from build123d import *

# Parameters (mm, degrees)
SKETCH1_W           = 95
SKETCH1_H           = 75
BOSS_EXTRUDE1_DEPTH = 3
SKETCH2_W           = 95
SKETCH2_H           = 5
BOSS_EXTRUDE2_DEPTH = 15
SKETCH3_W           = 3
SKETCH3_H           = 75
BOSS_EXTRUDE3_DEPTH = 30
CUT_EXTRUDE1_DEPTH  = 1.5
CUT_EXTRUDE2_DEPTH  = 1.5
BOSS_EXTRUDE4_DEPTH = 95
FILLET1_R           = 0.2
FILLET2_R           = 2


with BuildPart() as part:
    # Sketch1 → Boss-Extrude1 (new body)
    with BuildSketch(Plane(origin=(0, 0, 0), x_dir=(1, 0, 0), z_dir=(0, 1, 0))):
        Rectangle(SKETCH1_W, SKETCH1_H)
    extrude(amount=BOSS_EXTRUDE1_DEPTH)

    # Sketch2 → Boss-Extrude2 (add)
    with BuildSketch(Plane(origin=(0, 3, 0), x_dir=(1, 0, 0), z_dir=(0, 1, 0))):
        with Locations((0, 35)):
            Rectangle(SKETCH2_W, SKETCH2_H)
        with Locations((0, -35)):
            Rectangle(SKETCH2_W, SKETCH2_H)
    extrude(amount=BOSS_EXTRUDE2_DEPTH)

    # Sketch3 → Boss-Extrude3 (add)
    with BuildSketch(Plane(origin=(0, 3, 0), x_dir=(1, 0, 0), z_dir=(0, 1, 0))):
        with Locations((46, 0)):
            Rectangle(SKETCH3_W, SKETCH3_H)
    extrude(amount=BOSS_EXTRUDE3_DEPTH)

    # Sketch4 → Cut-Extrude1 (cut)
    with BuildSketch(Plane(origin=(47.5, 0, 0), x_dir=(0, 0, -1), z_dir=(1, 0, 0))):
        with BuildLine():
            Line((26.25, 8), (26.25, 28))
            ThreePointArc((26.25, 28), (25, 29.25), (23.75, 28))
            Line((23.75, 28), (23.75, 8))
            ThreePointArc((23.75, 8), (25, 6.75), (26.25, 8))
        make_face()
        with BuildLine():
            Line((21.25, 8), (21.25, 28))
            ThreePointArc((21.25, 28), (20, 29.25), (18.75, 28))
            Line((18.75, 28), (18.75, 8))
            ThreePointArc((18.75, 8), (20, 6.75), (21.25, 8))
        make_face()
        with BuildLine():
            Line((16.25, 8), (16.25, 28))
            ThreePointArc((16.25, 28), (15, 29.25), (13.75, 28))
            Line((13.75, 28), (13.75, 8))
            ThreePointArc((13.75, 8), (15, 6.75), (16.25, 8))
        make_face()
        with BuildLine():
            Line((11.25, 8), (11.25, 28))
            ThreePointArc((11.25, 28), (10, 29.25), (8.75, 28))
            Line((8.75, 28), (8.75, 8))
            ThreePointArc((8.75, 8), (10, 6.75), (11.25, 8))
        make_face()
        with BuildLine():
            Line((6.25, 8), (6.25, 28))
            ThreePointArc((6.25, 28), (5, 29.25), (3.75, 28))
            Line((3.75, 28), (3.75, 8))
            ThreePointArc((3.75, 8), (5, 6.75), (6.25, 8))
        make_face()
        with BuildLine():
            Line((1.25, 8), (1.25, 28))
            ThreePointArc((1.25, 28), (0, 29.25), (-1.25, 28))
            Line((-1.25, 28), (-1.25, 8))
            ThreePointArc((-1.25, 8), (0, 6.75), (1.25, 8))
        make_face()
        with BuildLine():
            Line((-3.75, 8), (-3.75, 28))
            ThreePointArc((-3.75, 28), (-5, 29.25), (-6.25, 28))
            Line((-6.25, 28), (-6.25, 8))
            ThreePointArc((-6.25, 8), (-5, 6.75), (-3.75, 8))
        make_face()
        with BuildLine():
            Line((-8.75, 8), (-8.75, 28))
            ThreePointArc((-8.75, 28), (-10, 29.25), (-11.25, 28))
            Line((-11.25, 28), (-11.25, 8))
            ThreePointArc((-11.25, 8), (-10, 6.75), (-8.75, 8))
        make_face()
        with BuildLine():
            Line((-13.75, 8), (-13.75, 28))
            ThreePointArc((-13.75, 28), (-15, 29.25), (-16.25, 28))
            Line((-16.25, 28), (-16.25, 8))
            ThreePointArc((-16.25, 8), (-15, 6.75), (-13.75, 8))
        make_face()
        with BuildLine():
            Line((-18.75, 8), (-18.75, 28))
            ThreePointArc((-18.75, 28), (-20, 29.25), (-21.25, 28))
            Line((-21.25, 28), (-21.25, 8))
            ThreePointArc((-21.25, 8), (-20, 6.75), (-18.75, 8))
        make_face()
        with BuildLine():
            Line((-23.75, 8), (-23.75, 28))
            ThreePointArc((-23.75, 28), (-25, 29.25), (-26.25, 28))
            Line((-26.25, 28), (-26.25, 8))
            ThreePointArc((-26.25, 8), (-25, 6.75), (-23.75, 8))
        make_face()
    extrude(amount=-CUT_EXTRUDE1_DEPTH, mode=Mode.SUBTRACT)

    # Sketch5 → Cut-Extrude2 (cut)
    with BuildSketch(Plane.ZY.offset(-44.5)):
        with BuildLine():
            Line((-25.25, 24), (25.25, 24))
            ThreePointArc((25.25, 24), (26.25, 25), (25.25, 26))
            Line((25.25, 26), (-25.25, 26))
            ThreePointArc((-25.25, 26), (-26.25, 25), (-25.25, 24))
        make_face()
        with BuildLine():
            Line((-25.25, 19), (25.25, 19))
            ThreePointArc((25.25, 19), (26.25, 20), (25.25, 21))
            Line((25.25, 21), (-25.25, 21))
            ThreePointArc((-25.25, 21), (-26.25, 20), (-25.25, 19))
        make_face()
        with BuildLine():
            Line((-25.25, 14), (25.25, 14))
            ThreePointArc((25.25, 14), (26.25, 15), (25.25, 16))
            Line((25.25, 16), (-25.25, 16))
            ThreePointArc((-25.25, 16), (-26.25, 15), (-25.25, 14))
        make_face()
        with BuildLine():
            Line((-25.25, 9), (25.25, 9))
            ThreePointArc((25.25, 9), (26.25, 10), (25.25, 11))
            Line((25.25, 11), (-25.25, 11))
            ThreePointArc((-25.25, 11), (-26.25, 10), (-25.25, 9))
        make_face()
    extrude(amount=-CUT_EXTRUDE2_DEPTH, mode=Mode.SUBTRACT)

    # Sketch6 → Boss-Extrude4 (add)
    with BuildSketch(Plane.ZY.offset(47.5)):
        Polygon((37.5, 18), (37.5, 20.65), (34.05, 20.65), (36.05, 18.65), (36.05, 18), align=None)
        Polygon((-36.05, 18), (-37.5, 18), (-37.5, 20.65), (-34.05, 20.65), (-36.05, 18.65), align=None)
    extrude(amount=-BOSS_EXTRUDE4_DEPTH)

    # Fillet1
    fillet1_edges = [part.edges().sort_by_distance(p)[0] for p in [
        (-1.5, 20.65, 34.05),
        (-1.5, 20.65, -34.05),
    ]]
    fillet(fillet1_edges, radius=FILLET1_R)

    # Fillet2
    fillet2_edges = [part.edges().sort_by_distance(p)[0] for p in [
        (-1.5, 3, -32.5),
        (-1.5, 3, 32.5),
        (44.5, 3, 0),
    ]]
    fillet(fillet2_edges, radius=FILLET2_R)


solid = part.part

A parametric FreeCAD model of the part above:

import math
import FreeCAD as App
import Part
import Sketcher
from FreeCAD import Vector
Q = App.Units.Quantity


def edges_at(feature, points):
    """Names of the edges that pass closest to the given points."""
    edges = feature.Shape.Edges
    near = lambda p: min(range(len(edges)), key=lambda i: edges[i].distToShape(Part.Vertex(*p))[0])
    return sorted({f"Edge{near(p) + 1}" for p in points})

doc = App.newDocument("Part")
params = doc.addObject("Spreadsheet::Sheet", "Params")
for row, (alias, value) in enumerate([
    ("sketch1_width", "95 mm"),
    ("sketch1_height", "75 mm"),
    ("pad1_length", "3 mm"),
    ("sketch2_width", "95 mm"),
    ("sketch2_height", "5 mm"),
    ("pad2_length", "15 mm"),
    ("sketch3_width", "3 mm"),
    ("sketch3_height", "75 mm"),
    ("pad3_length", "30 mm"),
    ("sketch4_width", "20 mm"),
    ("sketch4_radius", "1.25 mm"),
    ("pocket1_length", "1.5 mm"),
    ("sketch5_radius", "1 mm"),
    ("sketch5_height", "50.5 mm"),
    ("pocket2_length", "1.5 mm"),
    ("sketch6_width", "2.65 mm"),
    ("sketch6_height", "3.45 mm"),
    ("pad4_length", "95 mm"),
    ("fillet_radius", "0.2 mm"),
    ("fillet2_radius", "2 mm"),
], start=1):
    params.set(f"A{row}", alias)
    params.set(f"B{row}", "=" + value)
    params.setAlias(f"B{row}", alias)

body = doc.addObject("PartDesign::Body", "Body")

# Sketch on XZ plane
sketch1 = body.newObject("Sketcher::SketchObject", "Sketch")
sketch1.AttachmentSupport = (doc.getObject("XZ_Plane"), [""])
sketch1.MapMode = "FlatFace"
sketch1.addGeometry([
    Part.LineSegment(Vector(-48, -38, 0), Vector(-48, 38, 0)),
    Part.LineSegment(Vector(-48, 38, 0), Vector(48, 38, 0)),
    Part.LineSegment(Vector(48, 38, 0), Vector(48, -38, 0)),
    Part.LineSegment(Vector(48, -38, 0), Vector(-48, -38, 0)),
], False)
sketch1.addConstraint([
    Sketcher.Constraint("Coincident", 0, 2, 1, 1),
    Sketcher.Constraint("Coincident", 1, 2, 2, 1),
    Sketcher.Constraint("Coincident", 2, 2, 3, 1),
    Sketcher.Constraint("Coincident", 3, 2, 0, 1),
    Sketcher.Constraint("Vertical", 0),
    Sketcher.Constraint("Horizontal", 1),
    Sketcher.Constraint("Vertical", 2),
    Sketcher.Constraint("Horizontal", 3),
    Sketcher.Constraint("Symmetric", 0, 2, 2, 2, -1, 1),
    Sketcher.Constraint("DistanceX", 1, 1, 1, 2, Q("95 mm")),
    Sketcher.Constraint("DistanceY", 0, 1, 0, 2, Q("75 mm")),
])
sketch1.setExpression("Constraints[9]", "Params.sketch1_width")
sketch1.setExpression("Constraints[10]", "Params.sketch1_height")
pad1 = body.newObject("PartDesign::Pad", "Pad")
pad1.Profile = sketch1
pad1.setExpression("Length", "Params.pad1_length")
pad1.Reversed = True

# Sketch on XZ plane
sketch2 = body.newObject("Sketcher::SketchObject", "Sketch001")
sketch2.AttachmentSupport = (doc.getObject("XZ_Plane"), [""])
sketch2.MapMode = "FlatFace"
sketch2.AttachmentOffset = App.Placement(Vector(0, 0, -3), App.Rotation())
sketch2.addGeometry([
    Part.LineSegment(Vector(-48, -38, 0), Vector(-48, -32, 0)),  # 0
    Part.LineSegment(Vector(-48, -32, 0), Vector(48, -32, 0)),  # 1
    Part.LineSegment(Vector(48, -32, 0), Vector(48, -38, 0)),  # 2
    Part.LineSegment(Vector(48, -38, 0), Vector(-48, -38, 0)),  # 3
    Part.LineSegment(Vector(-48, 32, 0), Vector(-48, 38, 0)),  # 4
    Part.LineSegment(Vector(-48, 38, 0), Vector(48, 38, 0)),  # 5
    Part.LineSegment(Vector(48, 38, 0), Vector(48, 32, 0)),  # 6
    Part.LineSegment(Vector(48, 32, 0), Vector(-48, 32, 0)),  # 7
], False)
sketch2.addConstraint([
    Sketcher.Constraint("Coincident", 0, 2, 1, 1),
    Sketcher.Constraint("Coincident", 1, 2, 2, 1),
    Sketcher.Constraint("Coincident", 2, 2, 3, 1),
    Sketcher.Constraint("Coincident", 3, 2, 0, 1),
    Sketcher.Constraint("Coincident", 4, 2, 5, 1),
    Sketcher.Constraint("Coincident", 5, 2, 6, 1),
    Sketcher.Constraint("Coincident", 6, 2, 7, 1),
    Sketcher.Constraint("Coincident", 7, 2, 4, 1),
    Sketcher.Constraint("Vertical", 0),
    Sketcher.Constraint("Horizontal", 1),
    Sketcher.Constraint("Vertical", 2),
    Sketcher.Constraint("Horizontal", 3),
    Sketcher.Constraint("Vertical", 4),
    Sketcher.Constraint("Horizontal", 5),
    Sketcher.Constraint("Vertical", 6),
    Sketcher.Constraint("Horizontal", 7),
    Sketcher.Constraint("Symmetric", 2, 2, 4, 2, -1, 1),
    Sketcher.Constraint("Symmetric", 0, 2, 6, 2, -1, 1),
    Sketcher.Constraint("Vertical", 3, 2, 4, 2),
    Sketcher.Constraint("DistanceX", 1, 1, 1, 2, Q("95 mm")),
    Sketcher.Constraint("DistanceY", 0, 1, 0, 2, Q("5 mm")),
    Sketcher.Constraint("DistanceY", 0, 2, 4, 2, Q("70 mm")),
])
sketch2.setExpression("Constraints[19]", "Params.sketch2_width")
sketch2.setExpression("Constraints[20]", "Params.sketch2_height")
pad2 = body.newObject("PartDesign::Pad", "Pad001")
pad2.Profile = sketch2
pad2.setExpression("Length", "Params.pad2_length")
pad2.Reversed = True

# Sketch on XZ plane
sketch3 = body.newObject("Sketcher::SketchObject", "Sketch002")
sketch3.AttachmentSupport = (doc.getObject("XZ_Plane"), [""])
sketch3.MapMode = "FlatFace"
sketch3.AttachmentOffset = App.Placement(Vector(0, 0, -3), App.Rotation())
sketch3.addGeometry([
    Part.LineSegment(Vector(44.5, -37.5, 0), Vector(44.5, 37.5, 0)),
    Part.LineSegment(Vector(44.5, 37.5, 0), Vector(47.5, 37.5, 0)),
    Part.LineSegment(Vector(47.5, 37.5, 0), Vector(47.5, -37.5, 0)),
    Part.LineSegment(Vector(47.5, -37.5, 0), Vector(44.5, -37.5, 0)),
], False)
sketch3.addConstraint([
    Sketcher.Constraint("Coincident", 0, 2, 1, 1),
    Sketcher.Constraint("Coincident", 1, 2, 2, 1),
    Sketcher.Constraint("Coincident", 2, 2, 3, 1),
    Sketcher.Constraint("Coincident", 3, 2, 0, 1),
    Sketcher.Constraint("Vertical", 0),
    Sketcher.Constraint("Horizontal", 1),
    Sketcher.Constraint("Vertical", 2),
    Sketcher.Constraint("Horizontal", 3),
    Sketcher.Constraint("DistanceX", 1, 1, 1, 2, Q("3 mm")),
    Sketcher.Constraint("DistanceY", 0, 1, 0, 2, Q("75 mm")),
    Sketcher.Constraint("DistanceX", -1, 1, 0, 2, Q("44.5 mm")),
    Sketcher.Constraint("DistanceY", -1, 1, 0, 2, Q("37.5 mm")),
])
sketch3.setExpression("Constraints[8]", "Params.sketch3_width")
sketch3.setExpression("Constraints[9]", "Params.sketch3_height")
pad3 = body.newObject("PartDesign::Pad", "Pad002")
pad3.Profile = sketch3
pad3.setExpression("Length", "Params.pad3_length")
pad3.Reversed = True

# Sketch on YZ plane
sketch4 = body.newObject("Sketcher::SketchObject", "Sketch003")
sketch4.AttachmentSupport = (doc.getObject("YZ_Plane"), [""])
sketch4.MapMode = "FlatFace"
sketch4.AttachmentOffset = App.Placement(Vector(0, 0, 47.5), App.Rotation())
sketch4.addGeometry([
    Part.LineSegment(Vector(8, -26.2, 0), Vector(28, -26.2, 0)),  # 0
    Part.ArcOfCircle(Part.Circle(Vector(28, -25, 0), Vector(0, 0, 1), 1.2), math.radians(-90), math.radians(90)),  # 1
    Part.LineSegment(Vector(28, -23.8, 0), Vector(8, -23.8, 0)),  # 2
    Part.ArcOfCircle(Part.Circle(Vector(8, -25, 0), Vector(0, 0, 1), 1.2), math.radians(90), math.radians(270)),  # 3
    Part.LineSegment(Vector(8, -21.2, 0), Vector(28, -21.2, 0)),  # 4
    Part.ArcOfCircle(Part.Circle(Vector(28, -20, 0), Vector(0, 0, 1), 1.2), math.radians(-90), math.radians(90)),  # 5
    Part.LineSegment(Vector(28, -18.8, 0), Vector(8, -18.8, 0)),  # 6
    Part.ArcOfCircle(Part.Circle(Vector(8, -20, 0), Vector(0, 0, 1), 1.2), math.radians(90), math.radians(270)),  # 7
    Part.LineSegment(Vector(8, -16.2, 0), Vector(28, -16.2, 0)),  # 8
    Part.ArcOfCircle(Part.Circle(Vector(28, -15, 0), Vector(0, 0, 1), 1.2), math.radians(-90), math.radians(90)),  # 9
    Part.LineSegment(Vector(28, -13.8, 0), Vector(8, -13.8, 0)),  # 10
    Part.ArcOfCircle(Part.Circle(Vector(8, -15, 0), Vector(0, 0, 1), 1.2), math.radians(90), math.radians(270)),  # 11
    Part.LineSegment(Vector(8, -11.2, 0), Vector(28, -11.2, 0)),  # 12
    Part.ArcOfCircle(Part.Circle(Vector(28, -10, 0), Vector(0, 0, 1), 1.2), math.radians(-90), math.radians(90)),  # 13
    Part.LineSegment(Vector(28, -8.8, 0), Vector(8, -8.8, 0)),  # 14
    Part.ArcOfCircle(Part.Circle(Vector(8, -10, 0), Vector(0, 0, 1), 1.2), math.radians(90), math.radians(270)),  # 15
    Part.LineSegment(Vector(8, -6.2, 0), Vector(28, -6.2, 0)),  # 16
    Part.ArcOfCircle(Part.Circle(Vector(28, -5, 0), Vector(0, 0, 1), 1.2), math.radians(-90), math.radians(90)),  # 17
    Part.LineSegment(Vector(28, -3.8, 0), Vector(8, -3.8, 0)),  # 18
    Part.ArcOfCircle(Part.Circle(Vector(8, -5, 0), Vector(0, 0, 1), 1.2), math.radians(90), math.radians(270)),  # 19
    Part.LineSegment(Vector(8, -1.2, 0), Vector(28, -1.2, 0)),  # 20
    Part.ArcOfCircle(Part.Circle(Vector(28, 0, 0), Vector(0, 0, 1), 1.2), math.radians(-90), math.radians(90)),  # 21
    Part.LineSegment(Vector(28, 1.2, 0), Vector(8, 1.2, 0)),  # 22
    Part.ArcOfCircle(Part.Circle(Vector(8, 0, 0), Vector(0, 0, 1), 1.2), math.radians(90), math.radians(270)),  # 23
    Part.LineSegment(Vector(8, 3.8, 0), Vector(28, 3.8, 0)),  # 24
    Part.ArcOfCircle(Part.Circle(Vector(28, 5, 0), Vector(0, 0, 1), 1.2), math.radians(-90), math.radians(90)),  # 25
    Part.LineSegment(Vector(28, 6.2, 0), Vector(8, 6.2, 0)),  # 26
    Part.ArcOfCircle(Part.Circle(Vector(8, 5, 0), Vector(0, 0, 1), 1.2), math.radians(90), math.radians(270)),  # 27
    Part.LineSegment(Vector(8, 8.8, 0), Vector(28, 8.8, 0)),  # 28
    Part.ArcOfCircle(Part.Circle(Vector(28, 10, 0), Vector(0, 0, 1), 1.2), math.radians(-90), math.radians(90)),  # 29
    Part.LineSegment(Vector(28, 11.2, 0), Vector(8, 11.2, 0)),  # 30
    Part.ArcOfCircle(Part.Circle(Vector(8, 10, 0), Vector(0, 0, 1), 1.2), math.radians(90), math.radians(270)),  # 31
    Part.LineSegment(Vector(8, 13.8, 0), Vector(28, 13.8, 0)),  # 32
    Part.ArcOfCircle(Part.Circle(Vector(28, 15, 0), Vector(0, 0, 1), 1.2), math.radians(-90), math.radians(90)),  # 33
    Part.LineSegment(Vector(28, 16.2, 0), Vector(8, 16.2, 0)),  # 34
    Part.ArcOfCircle(Part.Circle(Vector(8, 15, 0), Vector(0, 0, 1), 1.2), math.radians(90), math.radians(270)),  # 35
    Part.LineSegment(Vector(8, 18.8, 0), Vector(28, 18.8, 0)),  # 36
    Part.ArcOfCircle(Part.Circle(Vector(28, 20, 0), Vector(0, 0, 1), 1.2), math.radians(-90), math.radians(90)),  # 37
    Part.LineSegment(Vector(28, 21.2, 0), Vector(8, 21.2, 0)),  # 38
    Part.ArcOfCircle(Part.Circle(Vector(8, 20, 0), Vector(0, 0, 1), 1.2), math.radians(90), math.radians(270)),  # 39
    Part.LineSegment(Vector(8, 23.8, 0), Vector(28, 23.8, 0)),  # 40
    Part.ArcOfCircle(Part.Circle(Vector(28, 25, 0), Vector(0, 0, 1), 1.2), math.radians(-90), math.radians(90)),  # 41
    Part.LineSegment(Vector(28, 26.2, 0), Vector(8, 26.2, 0)),  # 42
    Part.ArcOfCircle(Part.Circle(Vector(8, 25, 0), Vector(0, 0, 1), 1.2), math.radians(90), math.radians(270)),  # 43
], False)
sketch4.addConstraint([
    Sketcher.Constraint("Tangent", 0, 2, 1, 1),
    Sketcher.Constraint("Tangent", 1, 2, 2, 1),
    Sketcher.Constraint("Tangent", 2, 2, 3, 1),
    Sketcher.Constraint("Tangent", 3, 2, 0, 1),
    Sketcher.Constraint("Tangent", 4, 2, 5, 1),
    Sketcher.Constraint("Tangent", 5, 2, 6, 1),
    Sketcher.Constraint("Tangent", 6, 2, 7, 1),
    Sketcher.Constraint("Tangent", 7, 2, 4, 1),
    Sketcher.Constraint("Tangent", 8, 2, 9, 1),
    Sketcher.Constraint("Tangent", 9, 2, 10, 1),
    Sketcher.Constraint("Tangent", 10, 2, 11, 1),
    Sketcher.Constraint("Tangent", 11, 2, 8, 1),
    Sketcher.Constraint("Tangent", 12, 2, 13, 1),
    Sketcher.Constraint("Tangent", 13, 2, 14, 1),
    Sketcher.Constraint("Tangent", 14, 2, 15, 1),
    Sketcher.Constraint("Tangent", 15, 2, 12, 1),
    Sketcher.Constraint("Tangent", 16, 2, 17, 1),
    Sketcher.Constraint("Tangent", 17, 2, 18, 1),
    Sketcher.Constraint("Tangent", 18, 2, 19, 1),
    Sketcher.Constraint("Tangent", 19, 2, 16, 1),
    Sketcher.Constraint("Tangent", 20, 2, 21, 1),
    Sketcher.Constraint("Tangent", 21, 2, 22, 1),
    Sketcher.Constraint("Tangent", 22, 2, 23, 1),
    Sketcher.Constraint("Tangent", 23, 2, 20, 1),
    Sketcher.Constraint("Tangent", 24, 2, 25, 1),
    Sketcher.Constraint("Tangent", 25, 2, 26, 1),
    Sketcher.Constraint("Tangent", 26, 2, 27, 1),
    Sketcher.Constraint("Tangent", 27, 2, 24, 1),
    Sketcher.Constraint("Tangent", 28, 2, 29, 1),
    Sketcher.Constraint("Tangent", 29, 2, 30, 1),
    Sketcher.Constraint("Tangent", 30, 2, 31, 1),
    Sketcher.Constraint("Tangent", 31, 2, 28, 1),
    Sketcher.Constraint("Tangent", 32, 2, 33, 1),
    Sketcher.Constraint("Tangent", 33, 2, 34, 1),
    Sketcher.Constraint("Tangent", 34, 2, 35, 1),
    Sketcher.Constraint("Tangent", 35, 2, 32, 1),
    Sketcher.Constraint("Tangent", 36, 2, 37, 1),
    Sketcher.Constraint("Tangent", 37, 2, 38, 1),
    Sketcher.Constraint("Tangent", 38, 2, 39, 1),
    Sketcher.Constraint("Tangent", 39, 2, 36, 1),
    Sketcher.Constraint("Tangent", 40, 2, 41, 1),
    Sketcher.Constraint("Tangent", 41, 2, 42, 1),
    Sketcher.Constraint("Tangent", 42, 2, 43, 1),
    Sketcher.Constraint("Tangent", 43, 2, 40, 1),
    Sketcher.Constraint("Horizontal", 0),
    Sketcher.Constraint("Horizontal", 2),
    Sketcher.Constraint("Horizontal", 4),
    Sketcher.Constraint("Horizontal", 6),
    Sketcher.Constraint("Horizontal", 8),
    Sketcher.Constraint("Horizontal", 10),
    Sketcher.Constraint("Horizontal", 12),
    Sketcher.Constraint("Horizontal", 14),
    Sketcher.Constraint("Horizontal", 16),
    Sketcher.Constraint("Horizontal", 18),
    Sketcher.Constraint("Horizontal", 20),
    Sketcher.Constraint("Horizontal", 22),
    Sketcher.Constraint("Horizontal", 24),
    Sketcher.Constraint("Horizontal", 26),
    Sketcher.Constraint("Horizontal", 28),
    Sketcher.Constraint("Horizontal", 30),
    Sketcher.Constraint("Horizontal", 32),
    Sketcher.Constraint("Horizontal", 34),
    Sketcher.Constraint("Horizontal", 36),
    Sketcher.Constraint("Horizontal", 38),
    Sketcher.Constraint("Horizontal", 40),
    Sketcher.Constraint("Horizontal", 42),
    Sketcher.Constraint("Equal", 3, 5),
    Sketcher.Constraint("Equal", 7, 9),
    Sketcher.Constraint("Equal", 11, 13),
    Sketcher.Constraint("Equal", 15, 17),
    Sketcher.Constraint("Equal", 19, 21),
    Sketcher.Constraint("Equal", 23, 25),
    Sketcher.Constraint("Equal", 27, 29),
    Sketcher.Constraint("Equal", 31, 33),
    Sketcher.Constraint("Equal", 35, 37),
    Sketcher.Constraint("Equal", 39, 41),
    Sketcher.Constraint("Symmetric", 17, 3, 25, 3, -1),
    Sketcher.Constraint("Symmetric", 13, 3, 29, 3, -1),
    Sketcher.Constraint("Symmetric", 9, 3, 33, 3, -1),
    Sketcher.Constraint("Symmetric", 5, 3, 37, 3, -1),
    Sketcher.Constraint("Symmetric", 1, 3, 41, 3, -1),
    Sketcher.Constraint("PointOnObject", 21, 3, -1),
    Sketcher.Constraint("Vertical", 1, 3, 5, 3),
    Sketcher.Constraint("Vertical", 3, 3, 7, 3),
    Sketcher.Constraint("Vertical", 5, 3, 9, 3),
    Sketcher.Constraint("Vertical", 7, 3, 11, 3),
    Sketcher.Constraint("Vertical", 9, 3, 13, 3),
    Sketcher.Constraint("Vertical", 11, 3, 15, 3),
    Sketcher.Constraint("Vertical", 13, 3, 17, 3),
    Sketcher.Constraint("Vertical", 15, 3, 19, 3),
    Sketcher.Constraint("Vertical", 17, 3, 21, 3),
    Sketcher.Constraint("Vertical", 19, 3, 23, 3),
    Sketcher.Constraint("Vertical", 23, 3, 27, 3),
    Sketcher.Constraint("Vertical", 27, 3, 31, 3),
    Sketcher.Constraint("Vertical", 31, 3, 35, 3),
    Sketcher.Constraint("Vertical", 35, 3, 39, 3),
    Sketcher.Constraint("Vertical", 39, 3, 43, 3),
    Sketcher.Constraint("DistanceX", 0, 1, 0, 2, Q("20 mm")),
    Sketcher.Constraint("Radius", 1, Q("1.25 mm")),
    Sketcher.Constraint("DistanceX", -1, 1, 1, 3, Q("28 mm")),
    Sketcher.Constraint("DistanceY", 1, 3, -1, 1, Q("25 mm")),
    Sketcher.Constraint("DistanceY", 5, 3, -1, 1, Q("20 mm")),
    Sketcher.Constraint("DistanceY", 9, 3, -1, 1, Q("15 mm")),
    Sketcher.Constraint("DistanceY", 13, 3, -1, 1, Q("10 mm")),
    Sketcher.Constraint("DistanceY", 17, 3, -1, 1, Q("5 mm")),
])
sketch4.setExpression("Constraints[97]", "Params.sketch4_width")
sketch4.setExpression("Constraints[98]", "Params.sketch4_radius")
pocket1 = body.newObject("PartDesign::Pocket", "Pocket")
pocket1.Profile = sketch4
pocket1.setExpression("Length", "Params.pocket1_length")

# Sketch on YZ plane
sketch5 = body.newObject("Sketcher::SketchObject", "Sketch004")
sketch5.AttachmentSupport = (doc.getObject("YZ_Plane"), [""])
sketch5.MapMode = "FlatFace"
sketch5.AttachmentOffset = App.Placement(Vector(0, 0, 44.5), App.Rotation())
sketch5.addGeometry([
    Part.LineSegment(Vector(24, -25.2, 0), Vector(24, 25.2, 0)),  # 0
    Part.ArcOfCircle(Part.Circle(Vector(25, 25.2, 0), Vector(0, 0, 1), 1), math.radians(0), math.radians(180)),  # 1
    Part.LineSegment(Vector(26, 25.2, 0), Vector(26, -25.2, 0)),  # 2
    Part.ArcOfCircle(Part.Circle(Vector(25, -25.2, 0), Vector(0, 0, 1), 1), math.radians(180), math.radians(360)),  # 3
    Part.LineSegment(Vector(19, -25.2, 0), Vector(19, 25.2, 0)),  # 4
    Part.ArcOfCircle(Part.Circle(Vector(20, 25.2, 0), Vector(0, 0, 1), 1), math.radians(0), math.radians(180)),  # 5
    Part.LineSegment(Vector(21, 25.2, 0), Vector(21, -25.2, 0)),  # 6
    Part.ArcOfCircle(Part.Circle(Vector(20, -25.2, 0), Vector(0, 0, 1), 1), math.radians(180), math.radians(360)),  # 7
    Part.LineSegment(Vector(14, -25.2, 0), Vector(14, 25.2, 0)),  # 8
    Part.ArcOfCircle(Part.Circle(Vector(15, 25.2, 0), Vector(0, 0, 1), 1), math.radians(0), math.radians(180)),  # 9
    Part.LineSegment(Vector(16, 25.2, 0), Vector(16, -25.2, 0)),  # 10
    Part.ArcOfCircle(Part.Circle(Vector(15, -25.2, 0), Vector(0, 0, 1), 1), math.radians(180), math.radians(360)),  # 11
    Part.LineSegment(Vector(9, -25.2, 0), Vector(9, 25.2, 0)),  # 12
    Part.ArcOfCircle(Part.Circle(Vector(10, 25.2, 0), Vector(0, 0, 1), 1), math.radians(0), math.radians(180)),  # 13
    Part.LineSegment(Vector(11, 25.2, 0), Vector(11, -25.2, 0)),  # 14
    Part.ArcOfCircle(Part.Circle(Vector(10, -25.2, 0), Vector(0, 0, 1), 1), math.radians(180), math.radians(360)),  # 15
], False)
sketch5.addConstraint([
    Sketcher.Constraint("Tangent", 0, 2, 1, 2),
    Sketcher.Constraint("Tangent", 1, 1, 2, 1),
    Sketcher.Constraint("Tangent", 2, 2, 3, 2),
    Sketcher.Constraint("Tangent", 3, 1, 0, 1),
    Sketcher.Constraint("Tangent", 4, 2, 5, 2),
    Sketcher.Constraint("Tangent", 5, 1, 6, 1),
    Sketcher.Constraint("Tangent", 6, 2, 7, 2),
    Sketcher.Constraint("Tangent", 7, 1, 4, 1),
    Sketcher.Constraint("Tangent", 8, 2, 9, 2),
    Sketcher.Constraint("Tangent", 9, 1, 10, 1),
    Sketcher.Constraint("Tangent", 10, 2, 11, 2),
    Sketcher.Constraint("Tangent", 11, 1, 8, 1),
    Sketcher.Constraint("Tangent", 12, 2, 13, 2),
    Sketcher.Constraint("Tangent", 13, 1, 14, 1),
    Sketcher.Constraint("Tangent", 14, 2, 15, 2),
    Sketcher.Constraint("Tangent", 15, 1, 12, 1),
    Sketcher.Constraint("Vertical", 0),
    Sketcher.Constraint("Vertical", 2),
    Sketcher.Constraint("Vertical", 4),
    Sketcher.Constraint("Vertical", 6),
    Sketcher.Constraint("Vertical", 8),
    Sketcher.Constraint("Vertical", 10),
    Sketcher.Constraint("Vertical", 12),
    Sketcher.Constraint("Vertical", 14),
    Sketcher.Constraint("Equal", 3, 5),
    Sketcher.Constraint("Equal", 7, 9),
    Sketcher.Constraint("Equal", 11, 13),
    Sketcher.Constraint("Horizontal", 1, 3, 5, 3),
    Sketcher.Constraint("Horizontal", 3, 3, 7, 3),
    Sketcher.Constraint("Horizontal", 5, 3, 9, 3),
    Sketcher.Constraint("Horizontal", 7, 3, 11, 3),
    Sketcher.Constraint("Horizontal", 9, 3, 13, 3),
    Sketcher.Constraint("Horizontal", 11, 3, 15, 3),
    Sketcher.Constraint("Radius", 1, Q("1 mm")),
    Sketcher.Constraint("DistanceY", 0, 1, 0, 2, Q("50.5 mm")),
    Sketcher.Constraint("DistanceX", -1, 1, 1, 3, Q("25 mm")),
    Sketcher.Constraint("DistanceX", -1, 1, 5, 3, Q("20 mm")),
    Sketcher.Constraint("DistanceX", -1, 1, 9, 3, Q("15 mm")),
    Sketcher.Constraint("DistanceX", -1, 1, 13, 3, Q("10 mm")),
    Sketcher.Constraint("DistanceY", -1, 1, 1, 3, Q("25.25 mm")),
])
sketch5.setExpression("Constraints[33]", "Params.sketch5_radius")
sketch5.setExpression("Constraints[34]", "Params.sketch5_height")
pocket2 = body.newObject("PartDesign::Pocket", "Pocket001")
pocket2.Profile = sketch5
pocket2.setExpression("Length", "Params.pocket2_length")
pocket2.Reversed = True

# Sketch on YZ plane
sketch6 = body.newObject("Sketcher::SketchObject", "Sketch005")
sketch6.AttachmentSupport = (doc.getObject("YZ_Plane"), [""])
sketch6.MapMode = "FlatFace"
sketch6.AttachmentOffset = App.Placement(Vector(0, 0, -47.5), App.Rotation())
sketch6.addGeometry([
    Part.LineSegment(Vector(18, 37.5, 0), Vector(20.6, 37.5, 0)),  # 0
    Part.LineSegment(Vector(20.6, 37.5, 0), Vector(20.6, 34, 0)),  # 1
    Part.LineSegment(Vector(20.6, 34, 0), Vector(18.6, 36, 0)),  # 2
    Part.LineSegment(Vector(18.6, 36, 0), Vector(18, 36, 0)),  # 3
    Part.LineSegment(Vector(18, 36, 0), Vector(18, 37.5, 0)),  # 4
    Part.LineSegment(Vector(18, -37.5, 0), Vector(18, -36, 0)),  # 5
    Part.LineSegment(Vector(18, -36, 0), Vector(18.6, -36, 0)),  # 6
    Part.LineSegment(Vector(18.6, -36, 0), Vector(20.6, -34, 0)),  # 7
    Part.LineSegment(Vector(20.6, -34, 0), Vector(20.6, -37.5, 0)),  # 8
    Part.LineSegment(Vector(20.6, -37.5, 0), Vector(18, -37.5, 0)),  # 9
], False)
sketch6.addConstraint([
    Sketcher.Constraint("Coincident", 0, 2, 1, 1),
    Sketcher.Constraint("Coincident", 1, 2, 2, 1),
    Sketcher.Constraint("Coincident", 2, 2, 3, 1),
    Sketcher.Constraint("Coincident", 3, 2, 4, 1),
    Sketcher.Constraint("Coincident", 4, 2, 0, 1),
    Sketcher.Constraint("Coincident", 5, 2, 6, 1),
    Sketcher.Constraint("Coincident", 6, 2, 7, 1),
    Sketcher.Constraint("Coincident", 7, 2, 8, 1),
    Sketcher.Constraint("Coincident", 8, 2, 9, 1),
    Sketcher.Constraint("Coincident", 9, 2, 5, 1),
    Sketcher.Constraint("Horizontal", 0),
    Sketcher.Constraint("Vertical", 1),
    Sketcher.Constraint("Horizontal", 3),
    Sketcher.Constraint("Vertical", 4),
    Sketcher.Constraint("Vertical", 5),
    Sketcher.Constraint("Horizontal", 6),
    Sketcher.Constraint("Vertical", 8),
    Sketcher.Constraint("Horizontal", 9),
    Sketcher.Constraint("Symmetric", 3, 2, 5, 2, -1),
    Sketcher.Constraint("Symmetric", 1, 2, 7, 2, -1),
    Sketcher.Constraint("Perpendicular", 2, 7),
    Sketcher.Constraint("Vertical", 2, 2, 6, 2),
    Sketcher.Constraint("Equal", 4, 5),
    Sketcher.Constraint("DistanceX", -1, 1, 3, 2, Q("18 mm")),
    Sketcher.Constraint("DistanceX", 2, 2, 0, 2, Q("2 mm")),
    Sketcher.Constraint("DistanceX", 0, 1, 0, 2, Q("2.65 mm")),
    Sketcher.Constraint("DistanceY", 1, 2, 1, 1, Q("3.45 mm")),
    Sketcher.Constraint("DistanceY", -1, 1, 0, 2, Q("37.5 mm")),
])
sketch6.setExpression("Constraints[25]", "Params.sketch6_width")
sketch6.setExpression("Constraints[26]", "Params.sketch6_height")
pad4 = body.newObject("PartDesign::Pad", "Pad003")
pad4.Profile = sketch6
pad4.setExpression("Length", "Params.pad4_length")
doc.recompute()

fillet = body.newObject("PartDesign::Fillet", "Fillet")
fillet.Base = (pad4, edges_at(pad4, [(-1.5, 20.65, 34.05), (-1.5, 20.65, -34.05)]))
fillet.setExpression("Radius", "Params.fillet_radius")
doc.recompute()

fillet2 = body.newObject("PartDesign::Fillet", "Fillet001")
fillet2.Base = (fillet, edges_at(fillet, [(-1.5, 3, -32.5), (-1.5, 3, 32.5), (44.5, 3, 0)]))
fillet2.setExpression("Radius", "Params.fillet2_radius")

doc.recompute()
